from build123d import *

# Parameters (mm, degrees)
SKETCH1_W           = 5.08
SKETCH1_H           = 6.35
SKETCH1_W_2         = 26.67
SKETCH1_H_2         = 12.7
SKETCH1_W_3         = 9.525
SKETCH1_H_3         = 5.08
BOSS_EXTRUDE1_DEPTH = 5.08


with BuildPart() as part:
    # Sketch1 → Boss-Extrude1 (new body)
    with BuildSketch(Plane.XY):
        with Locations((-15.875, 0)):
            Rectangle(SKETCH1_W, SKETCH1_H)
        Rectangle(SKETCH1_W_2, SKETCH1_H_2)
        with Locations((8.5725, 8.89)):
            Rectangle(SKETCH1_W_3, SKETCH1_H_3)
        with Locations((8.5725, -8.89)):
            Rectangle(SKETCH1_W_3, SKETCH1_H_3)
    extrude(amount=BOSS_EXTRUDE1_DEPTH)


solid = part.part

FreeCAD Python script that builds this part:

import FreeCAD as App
import Part
import Sketcher
Q = App.Units.Quantity

doc = App.newDocument("Part")
body = doc.addObject("PartDesign::Body", "Body")

sketch1 = body.newObject("Sketcher::SketchObject", "Sketch")
sketch1.AttachmentSupport = (doc.getObject("XY_Plane"), [""])
sketch1.MapMode = "FlatFace"
sketch1.addGeometry(Part.LineSegment(App.Vector(-18.415, 3.175, 0), App.Vector(-18.415, -3.175, 0)), False)
sketch1.addGeometry(Part.LineSegment(App.Vector(-18.415, -3.175, 0), App.Vector(-13.335, -3.175, 0)), False)
sketch1.addGeometry(Part.LineSegment(App.Vector(-13.335, -3.175, 0), App.Vector(-13.335, -6.35, 0)), False)
sketch1.addGeometry(Part.LineSegment(App.Vector(-13.335, -6.35, 0), App.Vector(3.81, -6.35, 0)), False)
sketch1.addGeometry(Part.LineSegment(App.Vector(3.81, -6.35, 0), App.Vector(3.81, -11.43, 0)), False)
sketch1.addGeometry(Part.LineSegment(App.Vector(3.81, -11.43, 0), App.Vector(13.335, -11.43, 0)), False)
sketch1.addGeometry(Part.LineSegment(App.Vector(13.335, -11.43, 0), App.Vector(13.335, 11.43, 0)), False)
sketch1.addGeometry(Part.LineSegment(App.Vector(13.335, 11.43, 0), App.Vector(3.81, 11.43, 0)), False)
sketch1.addGeometry(Part.LineSegment(App.Vector(3.81, 11.43, 0), App.Vector(3.81, 6.35, 0)), False)
sketch1.addGeometry(Part.LineSegment(App.Vector(3.81, 6.35, 0), App.Vector(-13.335, 6.35, 0)), False)
sketch1.addGeometry(Part.LineSegment(App.Vector(-13.335, 6.35, 0), App.Vector(-13.335, 3.175, 0)), False)
sketch1.addGeometry(Part.LineSegment(App.Vector(-13.335, 3.175, 0), App.Vector(-18.415, 3.175, 0)), False)
sketch1.addConstraint(Sketcher.Constraint("Coincident", 0, 2, 1, 1))
sketch1.addConstraint(Sketcher.Constraint("Coincident", 1, 2, 2, 1))
sketch1.addConstraint(Sketcher.Constraint("Coincident", 2, 2, 3, 1))
sketch1.addConstraint(Sketcher.Constraint("Coincident", 3, 2, 4, 1))
sketch1.addConstraint(Sketcher.Constraint("Coincident", 4, 2, 5, 1))
sketch1.addConstraint(Sketcher.Constraint("Coincident", 5, 2, 6, 1))
sketch1.addConstraint(Sketcher.Constraint("Coincident", 6, 2, 7, 1))
sketch1.addConstraint(Sketcher.Constraint("Coincident", 7, 2, 8, 1))
sketch1.addConstraint(Sketcher.Constraint("Coincident", 8, 2, 9, 1))
sketch1.addConstraint(Sketcher.Constraint("Coincident", 9, 2, 10, 1))
sketch1.addConstraint(Sketcher.Constraint("Coincident", 10, 2, 11, 1))
sketch1.addConstraint(Sketcher.Constraint("Coincident", 11, 2, 0, 1))
sketch1.addConstraint(Sketcher.Constraint("Vertical", 0))
sketch1.addConstraint(Sketcher.Constraint("Horizontal", 1))
sketch1.addConstraint(Sketcher.Constraint("Vertical", 2))
sketch1.addConstraint(Sketcher.Constraint("Horizontal", 3))
sketch1.addConstraint(Sketcher.Constraint("Vertical", 4))
sketch1.addConstraint(Sketcher.Constraint("Horizontal", 5))
sketch1.addConstraint(Sketcher.Constraint("Vertical", 6))
sketch1.addConstraint(Sketcher.Constraint("Horizontal", 7))
sketch1.addConstraint(Sketcher.Constraint("Vertical", 8))
sketch1.addConstraint(Sketcher.Constraint("Horizontal", 9))
sketch1.addConstraint(Sketcher.Constraint("Vertical", 10))
sketch1.addConstraint(Sketcher.Constraint("Horizontal", 11))
sketch1.addConstraint(Sketcher.Constraint("Symmetric", 4, 2, 7, 2, -1))
sketch1.addConstraint(Sketcher.Constraint("Symmetric", 2, 2, 9, 2, -1))
sketch1.addConstraint(Sketcher.Constraint("Equal", 11, 4))
sketch1.addConstraint(Sketcher.Constraint("Equal", 2, 10))
sketch1.addConstraint(Sketcher.Constraint("DistanceX", 1, 1, 1, 2, Q("0.2 in")))
sketch1.addConstraint(Sketcher.Constraint("DistanceY", 6, 1, 6, 2, Q("0.9 in")))
sketch1.addConstraint(Sketcher.Constraint("DistanceY", 0, 2, 0, 1, Q("0.25 in")))
sketch1.addConstraint(Sketcher.Constraint("DistanceX", 3, 1, 3, 2, Q("0.675 in")))
sketch1.addConstraint(Sketcher.Constraint("DistanceX", 5, 1, 5, 2, Q("0.375 in")))
sketch1.addConstraint(Sketcher.Constraint("DistanceX", -1, 1, 3, 2, Q("0.15 in")))
pad1 = body.newObject("PartDesign::Pad", "Pad")
pad1.Profile = sketch1
pad1.Length = Q("0.2 in")

doc.recompute()
